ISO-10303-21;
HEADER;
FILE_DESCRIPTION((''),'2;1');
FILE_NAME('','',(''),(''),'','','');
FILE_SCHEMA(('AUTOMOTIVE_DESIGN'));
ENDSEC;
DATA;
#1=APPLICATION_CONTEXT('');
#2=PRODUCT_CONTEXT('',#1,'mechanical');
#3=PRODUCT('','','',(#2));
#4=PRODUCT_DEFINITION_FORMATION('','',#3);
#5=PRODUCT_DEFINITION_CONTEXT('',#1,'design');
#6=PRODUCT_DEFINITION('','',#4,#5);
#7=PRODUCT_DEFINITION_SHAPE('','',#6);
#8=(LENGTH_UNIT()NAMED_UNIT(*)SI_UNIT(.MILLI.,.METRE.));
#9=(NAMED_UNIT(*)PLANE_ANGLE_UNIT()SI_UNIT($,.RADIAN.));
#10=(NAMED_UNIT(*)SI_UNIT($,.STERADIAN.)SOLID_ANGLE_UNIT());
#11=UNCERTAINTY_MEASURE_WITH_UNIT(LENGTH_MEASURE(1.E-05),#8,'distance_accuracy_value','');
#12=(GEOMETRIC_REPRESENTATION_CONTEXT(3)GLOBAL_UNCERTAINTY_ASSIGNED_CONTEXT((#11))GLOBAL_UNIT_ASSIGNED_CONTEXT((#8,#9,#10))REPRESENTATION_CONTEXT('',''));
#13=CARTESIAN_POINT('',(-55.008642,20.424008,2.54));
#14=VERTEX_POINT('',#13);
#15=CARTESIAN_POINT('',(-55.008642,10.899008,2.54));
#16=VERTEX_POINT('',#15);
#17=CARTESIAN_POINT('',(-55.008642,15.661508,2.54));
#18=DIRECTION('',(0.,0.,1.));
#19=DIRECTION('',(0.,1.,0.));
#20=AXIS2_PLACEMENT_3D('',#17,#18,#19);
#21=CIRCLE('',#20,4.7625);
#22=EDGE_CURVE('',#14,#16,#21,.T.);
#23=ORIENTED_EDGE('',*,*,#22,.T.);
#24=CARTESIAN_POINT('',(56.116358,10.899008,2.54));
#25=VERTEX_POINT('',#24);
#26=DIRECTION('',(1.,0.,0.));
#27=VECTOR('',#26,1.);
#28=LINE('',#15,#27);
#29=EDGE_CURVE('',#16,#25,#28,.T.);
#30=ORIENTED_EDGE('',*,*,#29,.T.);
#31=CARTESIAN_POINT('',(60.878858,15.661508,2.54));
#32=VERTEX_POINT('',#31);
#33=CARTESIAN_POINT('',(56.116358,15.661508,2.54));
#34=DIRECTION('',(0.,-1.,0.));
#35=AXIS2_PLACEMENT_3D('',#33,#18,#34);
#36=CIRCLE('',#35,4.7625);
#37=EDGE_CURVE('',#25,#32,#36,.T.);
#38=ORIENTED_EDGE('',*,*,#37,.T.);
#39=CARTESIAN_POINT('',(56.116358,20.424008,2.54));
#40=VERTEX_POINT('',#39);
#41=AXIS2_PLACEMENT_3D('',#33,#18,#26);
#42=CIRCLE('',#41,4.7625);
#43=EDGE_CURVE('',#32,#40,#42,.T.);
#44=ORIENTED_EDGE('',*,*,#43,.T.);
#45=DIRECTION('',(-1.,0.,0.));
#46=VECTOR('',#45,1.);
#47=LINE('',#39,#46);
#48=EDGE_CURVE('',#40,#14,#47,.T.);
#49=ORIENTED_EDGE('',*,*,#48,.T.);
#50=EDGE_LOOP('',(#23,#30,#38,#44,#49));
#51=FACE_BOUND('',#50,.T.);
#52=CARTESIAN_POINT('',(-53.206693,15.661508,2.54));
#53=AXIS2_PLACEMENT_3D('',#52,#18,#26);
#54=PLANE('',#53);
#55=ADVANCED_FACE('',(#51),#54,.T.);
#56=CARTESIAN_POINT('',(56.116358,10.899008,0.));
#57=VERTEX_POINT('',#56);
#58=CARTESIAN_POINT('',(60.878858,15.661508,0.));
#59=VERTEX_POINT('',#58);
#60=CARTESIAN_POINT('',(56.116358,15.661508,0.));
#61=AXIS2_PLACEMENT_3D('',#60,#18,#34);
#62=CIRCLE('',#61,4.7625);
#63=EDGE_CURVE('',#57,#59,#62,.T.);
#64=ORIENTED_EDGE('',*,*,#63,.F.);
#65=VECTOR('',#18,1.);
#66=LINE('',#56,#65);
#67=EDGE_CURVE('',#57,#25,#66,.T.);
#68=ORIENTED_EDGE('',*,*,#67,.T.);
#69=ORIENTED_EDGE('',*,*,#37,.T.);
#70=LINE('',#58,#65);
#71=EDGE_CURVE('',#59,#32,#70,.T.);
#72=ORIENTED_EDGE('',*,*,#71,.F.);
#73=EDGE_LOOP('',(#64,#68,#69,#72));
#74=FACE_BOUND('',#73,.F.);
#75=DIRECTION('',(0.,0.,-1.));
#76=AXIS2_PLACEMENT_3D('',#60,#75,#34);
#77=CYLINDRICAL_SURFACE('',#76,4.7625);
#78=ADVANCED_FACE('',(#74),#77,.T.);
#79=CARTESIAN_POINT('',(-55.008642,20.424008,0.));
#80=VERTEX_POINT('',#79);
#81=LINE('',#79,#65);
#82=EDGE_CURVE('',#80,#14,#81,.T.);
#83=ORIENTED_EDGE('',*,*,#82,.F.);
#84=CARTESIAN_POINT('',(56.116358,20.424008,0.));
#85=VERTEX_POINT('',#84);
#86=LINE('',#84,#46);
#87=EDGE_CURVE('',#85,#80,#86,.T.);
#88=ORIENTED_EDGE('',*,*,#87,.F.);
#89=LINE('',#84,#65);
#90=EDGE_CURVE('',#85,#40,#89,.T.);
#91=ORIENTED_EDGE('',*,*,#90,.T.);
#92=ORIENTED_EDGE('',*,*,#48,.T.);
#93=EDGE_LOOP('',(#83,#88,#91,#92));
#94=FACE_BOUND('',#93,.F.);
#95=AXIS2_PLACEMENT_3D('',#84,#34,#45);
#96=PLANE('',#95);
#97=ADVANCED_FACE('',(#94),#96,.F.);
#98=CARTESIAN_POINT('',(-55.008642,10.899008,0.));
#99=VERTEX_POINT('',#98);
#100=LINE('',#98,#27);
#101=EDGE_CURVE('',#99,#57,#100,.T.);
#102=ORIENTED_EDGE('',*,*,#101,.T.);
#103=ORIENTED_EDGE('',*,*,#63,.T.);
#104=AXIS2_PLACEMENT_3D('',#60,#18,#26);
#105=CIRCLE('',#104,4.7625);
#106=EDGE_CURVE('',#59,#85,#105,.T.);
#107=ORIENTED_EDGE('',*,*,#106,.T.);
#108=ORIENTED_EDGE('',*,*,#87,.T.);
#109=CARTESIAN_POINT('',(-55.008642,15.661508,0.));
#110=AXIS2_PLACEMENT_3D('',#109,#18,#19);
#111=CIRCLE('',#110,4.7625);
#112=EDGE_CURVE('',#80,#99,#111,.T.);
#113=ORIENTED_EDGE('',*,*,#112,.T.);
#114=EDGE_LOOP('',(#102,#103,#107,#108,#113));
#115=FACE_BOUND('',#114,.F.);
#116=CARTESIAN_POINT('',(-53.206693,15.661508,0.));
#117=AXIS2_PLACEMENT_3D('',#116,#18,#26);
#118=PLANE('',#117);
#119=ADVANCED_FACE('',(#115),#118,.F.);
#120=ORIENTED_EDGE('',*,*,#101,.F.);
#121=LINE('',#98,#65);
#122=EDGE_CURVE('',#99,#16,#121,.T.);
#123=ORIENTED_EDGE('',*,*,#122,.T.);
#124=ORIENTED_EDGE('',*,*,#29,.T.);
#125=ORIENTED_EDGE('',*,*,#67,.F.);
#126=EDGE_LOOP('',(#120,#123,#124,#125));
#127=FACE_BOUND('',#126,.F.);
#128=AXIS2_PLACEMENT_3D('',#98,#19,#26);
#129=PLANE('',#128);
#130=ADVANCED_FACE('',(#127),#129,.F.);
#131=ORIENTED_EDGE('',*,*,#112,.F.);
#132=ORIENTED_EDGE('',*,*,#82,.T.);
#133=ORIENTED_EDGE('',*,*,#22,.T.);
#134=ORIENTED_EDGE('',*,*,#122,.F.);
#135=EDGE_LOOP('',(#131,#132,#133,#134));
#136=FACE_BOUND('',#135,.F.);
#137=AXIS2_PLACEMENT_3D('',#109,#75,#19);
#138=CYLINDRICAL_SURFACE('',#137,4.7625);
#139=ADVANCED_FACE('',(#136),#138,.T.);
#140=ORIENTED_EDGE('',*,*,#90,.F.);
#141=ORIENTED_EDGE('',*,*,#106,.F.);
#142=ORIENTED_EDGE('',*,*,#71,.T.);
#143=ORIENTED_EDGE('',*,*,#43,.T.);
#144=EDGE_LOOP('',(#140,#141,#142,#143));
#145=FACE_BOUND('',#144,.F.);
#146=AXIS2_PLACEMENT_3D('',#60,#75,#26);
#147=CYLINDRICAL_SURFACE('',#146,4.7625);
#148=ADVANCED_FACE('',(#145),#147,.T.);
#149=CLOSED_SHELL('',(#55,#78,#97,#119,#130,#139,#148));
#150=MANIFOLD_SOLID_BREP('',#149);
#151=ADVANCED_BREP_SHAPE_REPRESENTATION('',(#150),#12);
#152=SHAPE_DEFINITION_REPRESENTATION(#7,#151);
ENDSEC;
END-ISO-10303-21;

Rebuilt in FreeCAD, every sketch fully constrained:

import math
import FreeCAD as App
import Part
import Sketcher
Q = App.Units.Quantity

doc = App.newDocument("Part")
body = doc.addObject("PartDesign::Body", "Body")

sketch1 = body.newObject("Sketcher::SketchObject", "Sketch")
sketch1.AttachmentSupport = (doc.getObject("XY_Plane"), [""])
sketch1.MapMode = "FlatFace"
sketch1.addGeometry([
    Part.LineSegment(App.Vector(-55, 10.9, 0), App.Vector(56.1, 10.9, 0)),
    Part.ArcOfCircle(Part.Circle(App.Vector(56.1, 15.7, 0), App.Vector(0, 0, 1), 4.8), math.radians(-90), math.radians(0)),
    Part.ArcOfCircle(Part.Circle(App.Vector(56.1, 15.7, 0), App.Vector(0, 0, 1), 4.8), math.radians(0), math.radians(90)),
    Part.LineSegment(App.Vector(56.1, 20.4, 0), App.Vector(-55, 20.4, 0)),
    Part.ArcOfCircle(Part.Circle(App.Vector(-55, 15.7, 0), App.Vector(0, 0, 1), 4.8), math.radians(90), math.radians(270)),
], False)
sketch1.addConstraint([
    Sketcher.Constraint("Tangent", 0, 2, 1, 1),
    Sketcher.Constraint("Tangent", 1, 2, 2, 1),
    Sketcher.Constraint("Tangent", 2, 2, 3, 1),
    Sketcher.Constraint("Tangent", 3, 2, 4, 1),
    Sketcher.Constraint("Tangent", 4, 2, 0, 1),
    Sketcher.Constraint("Horizontal", 0),
    Sketcher.Constraint("Horizontal", 3),
    Sketcher.Constraint("Equal", 1, 2),
    Sketcher.Constraint("Horizontal", 4, 3, 1, 2),
    Sketcher.Constraint("Radius", 1, Q("0.1875 in")),
    Sketcher.Constraint("DistanceX", 0, 1, 0, 2, Q("4.375 in")),
    Sketcher.Constraint("DistanceX", -1, 1, 1, 3, Q("56.116358 mm")),
    Sketcher.Constraint("DistanceY", -1, 1, 1, 3, Q("15.661508 mm")),
])
pad1 = body.newObject("PartDesign::Pad", "Pad")
pad1.Profile = sketch1
pad1.Length = Q("0.1 in")

doc.recompute()
